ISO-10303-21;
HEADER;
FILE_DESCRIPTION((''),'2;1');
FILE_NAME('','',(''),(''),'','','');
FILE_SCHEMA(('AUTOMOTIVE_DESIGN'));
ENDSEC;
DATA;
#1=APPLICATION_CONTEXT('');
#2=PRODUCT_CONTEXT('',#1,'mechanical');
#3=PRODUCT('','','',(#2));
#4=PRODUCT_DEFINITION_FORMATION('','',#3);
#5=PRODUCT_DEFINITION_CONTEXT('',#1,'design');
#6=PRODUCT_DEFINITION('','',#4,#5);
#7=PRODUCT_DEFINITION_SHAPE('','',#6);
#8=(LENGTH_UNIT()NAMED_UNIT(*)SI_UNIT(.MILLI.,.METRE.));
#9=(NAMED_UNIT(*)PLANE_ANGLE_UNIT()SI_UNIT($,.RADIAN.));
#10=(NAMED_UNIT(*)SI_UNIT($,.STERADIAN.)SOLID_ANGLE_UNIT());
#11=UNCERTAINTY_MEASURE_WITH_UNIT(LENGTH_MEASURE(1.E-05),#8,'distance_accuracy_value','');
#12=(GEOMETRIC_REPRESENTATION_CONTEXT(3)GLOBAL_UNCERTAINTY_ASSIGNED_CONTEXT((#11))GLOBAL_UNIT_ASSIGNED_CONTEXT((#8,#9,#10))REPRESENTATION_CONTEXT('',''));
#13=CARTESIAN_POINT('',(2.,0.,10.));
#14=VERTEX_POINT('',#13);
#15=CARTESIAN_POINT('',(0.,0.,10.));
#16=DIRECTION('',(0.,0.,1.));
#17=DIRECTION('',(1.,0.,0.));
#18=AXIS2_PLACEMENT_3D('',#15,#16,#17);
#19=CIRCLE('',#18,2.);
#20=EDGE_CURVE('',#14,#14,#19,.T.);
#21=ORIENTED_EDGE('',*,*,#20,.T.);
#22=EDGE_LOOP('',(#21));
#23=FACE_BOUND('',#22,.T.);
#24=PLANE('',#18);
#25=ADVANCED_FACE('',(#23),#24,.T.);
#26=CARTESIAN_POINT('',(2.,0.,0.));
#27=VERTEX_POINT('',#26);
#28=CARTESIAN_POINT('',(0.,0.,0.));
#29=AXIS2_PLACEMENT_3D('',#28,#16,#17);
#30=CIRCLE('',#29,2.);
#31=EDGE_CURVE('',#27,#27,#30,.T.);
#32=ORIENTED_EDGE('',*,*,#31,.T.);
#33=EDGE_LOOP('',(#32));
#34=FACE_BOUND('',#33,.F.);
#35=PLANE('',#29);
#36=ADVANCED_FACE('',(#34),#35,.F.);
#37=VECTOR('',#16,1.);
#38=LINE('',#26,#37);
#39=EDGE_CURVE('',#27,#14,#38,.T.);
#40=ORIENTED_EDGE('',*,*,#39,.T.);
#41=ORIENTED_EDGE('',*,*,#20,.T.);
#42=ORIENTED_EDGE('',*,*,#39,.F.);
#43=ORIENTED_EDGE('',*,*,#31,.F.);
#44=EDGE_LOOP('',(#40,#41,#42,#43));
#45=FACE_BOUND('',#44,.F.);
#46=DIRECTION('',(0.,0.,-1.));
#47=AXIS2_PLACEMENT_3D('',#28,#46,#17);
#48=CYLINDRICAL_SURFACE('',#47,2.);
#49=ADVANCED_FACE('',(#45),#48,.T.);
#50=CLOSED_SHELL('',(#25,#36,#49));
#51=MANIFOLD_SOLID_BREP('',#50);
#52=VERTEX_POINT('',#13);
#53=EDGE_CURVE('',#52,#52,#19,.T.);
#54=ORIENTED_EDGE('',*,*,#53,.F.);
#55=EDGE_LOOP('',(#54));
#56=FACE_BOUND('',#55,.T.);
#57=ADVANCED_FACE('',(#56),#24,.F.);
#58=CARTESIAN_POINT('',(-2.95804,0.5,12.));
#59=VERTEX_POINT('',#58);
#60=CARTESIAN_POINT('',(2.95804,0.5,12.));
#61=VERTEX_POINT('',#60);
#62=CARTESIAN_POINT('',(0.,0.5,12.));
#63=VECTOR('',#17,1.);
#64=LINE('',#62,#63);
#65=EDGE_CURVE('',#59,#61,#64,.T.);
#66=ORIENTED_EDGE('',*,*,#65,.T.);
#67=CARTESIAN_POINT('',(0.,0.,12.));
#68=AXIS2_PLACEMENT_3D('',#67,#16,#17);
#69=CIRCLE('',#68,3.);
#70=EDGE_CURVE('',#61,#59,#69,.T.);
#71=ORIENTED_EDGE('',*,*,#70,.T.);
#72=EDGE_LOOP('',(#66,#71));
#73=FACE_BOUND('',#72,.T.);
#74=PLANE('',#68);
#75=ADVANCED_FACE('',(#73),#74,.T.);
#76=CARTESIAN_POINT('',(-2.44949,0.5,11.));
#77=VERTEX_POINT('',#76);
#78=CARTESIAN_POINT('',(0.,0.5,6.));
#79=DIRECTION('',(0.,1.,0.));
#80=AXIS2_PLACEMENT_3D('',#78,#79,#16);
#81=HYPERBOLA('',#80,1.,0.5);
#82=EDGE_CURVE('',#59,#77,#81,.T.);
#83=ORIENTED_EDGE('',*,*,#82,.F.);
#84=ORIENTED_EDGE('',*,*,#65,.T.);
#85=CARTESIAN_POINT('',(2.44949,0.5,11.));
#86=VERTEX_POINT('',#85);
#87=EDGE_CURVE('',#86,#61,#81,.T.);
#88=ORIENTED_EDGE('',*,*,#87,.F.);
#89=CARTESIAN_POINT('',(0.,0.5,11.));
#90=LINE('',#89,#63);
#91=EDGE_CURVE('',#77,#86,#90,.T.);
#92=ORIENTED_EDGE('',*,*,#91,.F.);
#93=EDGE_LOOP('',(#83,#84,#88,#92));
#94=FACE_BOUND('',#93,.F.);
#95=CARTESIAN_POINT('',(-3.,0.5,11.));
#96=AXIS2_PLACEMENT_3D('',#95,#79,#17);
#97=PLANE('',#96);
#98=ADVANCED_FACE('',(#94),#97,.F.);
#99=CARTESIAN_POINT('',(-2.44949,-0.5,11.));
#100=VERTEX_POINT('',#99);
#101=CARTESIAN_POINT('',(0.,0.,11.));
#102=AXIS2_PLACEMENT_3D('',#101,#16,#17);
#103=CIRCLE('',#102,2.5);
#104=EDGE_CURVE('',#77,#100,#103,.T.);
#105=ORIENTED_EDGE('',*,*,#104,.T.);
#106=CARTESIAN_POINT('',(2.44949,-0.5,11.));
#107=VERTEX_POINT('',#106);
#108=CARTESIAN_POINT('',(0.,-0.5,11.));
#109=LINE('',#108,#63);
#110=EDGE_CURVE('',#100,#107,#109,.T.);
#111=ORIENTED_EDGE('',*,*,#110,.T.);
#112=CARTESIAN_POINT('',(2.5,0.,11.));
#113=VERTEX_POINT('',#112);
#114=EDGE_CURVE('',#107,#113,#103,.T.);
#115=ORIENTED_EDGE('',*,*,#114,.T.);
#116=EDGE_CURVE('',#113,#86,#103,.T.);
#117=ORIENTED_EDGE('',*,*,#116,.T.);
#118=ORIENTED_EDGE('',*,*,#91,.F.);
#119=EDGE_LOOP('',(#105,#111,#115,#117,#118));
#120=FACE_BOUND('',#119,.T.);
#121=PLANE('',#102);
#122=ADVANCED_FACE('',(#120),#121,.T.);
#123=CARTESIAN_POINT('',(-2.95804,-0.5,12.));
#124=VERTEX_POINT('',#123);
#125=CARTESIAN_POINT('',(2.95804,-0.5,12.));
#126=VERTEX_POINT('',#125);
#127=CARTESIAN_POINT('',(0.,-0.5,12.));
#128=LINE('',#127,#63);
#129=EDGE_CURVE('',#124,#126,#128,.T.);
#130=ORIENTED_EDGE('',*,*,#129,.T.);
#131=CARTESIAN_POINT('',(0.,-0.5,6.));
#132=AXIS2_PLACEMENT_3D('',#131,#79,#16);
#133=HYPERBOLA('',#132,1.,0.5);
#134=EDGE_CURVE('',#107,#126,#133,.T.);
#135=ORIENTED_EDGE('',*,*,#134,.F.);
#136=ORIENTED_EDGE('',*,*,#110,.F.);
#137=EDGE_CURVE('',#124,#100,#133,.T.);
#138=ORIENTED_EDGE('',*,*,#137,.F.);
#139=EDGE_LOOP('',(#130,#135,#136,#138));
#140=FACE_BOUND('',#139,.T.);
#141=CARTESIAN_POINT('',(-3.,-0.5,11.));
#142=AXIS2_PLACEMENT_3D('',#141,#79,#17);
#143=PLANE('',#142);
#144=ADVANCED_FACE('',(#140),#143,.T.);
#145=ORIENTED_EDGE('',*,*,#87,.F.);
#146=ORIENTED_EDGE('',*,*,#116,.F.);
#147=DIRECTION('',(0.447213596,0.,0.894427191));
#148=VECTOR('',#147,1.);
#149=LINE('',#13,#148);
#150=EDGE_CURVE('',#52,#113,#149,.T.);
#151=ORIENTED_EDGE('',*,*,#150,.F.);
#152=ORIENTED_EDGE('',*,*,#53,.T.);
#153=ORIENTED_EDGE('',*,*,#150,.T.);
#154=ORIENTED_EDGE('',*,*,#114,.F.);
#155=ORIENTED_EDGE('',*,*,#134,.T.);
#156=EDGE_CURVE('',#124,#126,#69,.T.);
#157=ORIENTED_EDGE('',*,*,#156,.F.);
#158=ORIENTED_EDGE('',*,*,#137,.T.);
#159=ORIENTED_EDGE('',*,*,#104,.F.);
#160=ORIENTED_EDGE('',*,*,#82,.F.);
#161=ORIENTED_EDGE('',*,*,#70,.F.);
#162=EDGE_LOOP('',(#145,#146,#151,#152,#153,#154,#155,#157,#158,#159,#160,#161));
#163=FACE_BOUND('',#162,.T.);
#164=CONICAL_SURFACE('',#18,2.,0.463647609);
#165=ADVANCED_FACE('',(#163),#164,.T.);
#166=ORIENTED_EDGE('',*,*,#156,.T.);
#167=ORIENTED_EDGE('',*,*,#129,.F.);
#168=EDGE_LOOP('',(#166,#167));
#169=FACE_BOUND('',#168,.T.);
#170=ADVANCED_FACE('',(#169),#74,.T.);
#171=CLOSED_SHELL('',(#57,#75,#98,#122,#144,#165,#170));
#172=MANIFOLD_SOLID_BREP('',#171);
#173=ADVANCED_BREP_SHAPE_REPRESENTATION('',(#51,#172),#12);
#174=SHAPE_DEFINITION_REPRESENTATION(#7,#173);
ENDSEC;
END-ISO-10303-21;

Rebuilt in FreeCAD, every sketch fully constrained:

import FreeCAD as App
import Part
import Sketcher
from FreeCAD import Vector

doc = App.newDocument("Part")
body = doc.addObject("PartDesign::Body", "Body")

sketch1 = body.newObject("Sketcher::SketchObject", "Sketch")
sketch1.AttachmentSupport = (doc.getObject("XY_Plane"), [""])
sketch1.MapMode = "FlatFace"
sketch1.addGeometry(Part.Circle(Vector(0, 0, 0), Vector(0, 0, 1), 2), False)
sketch1.addConstraint([
    Sketcher.Constraint("Coincident", 0, 3, -1, 1),
    Sketcher.Constraint("Diameter", 0, 4.0),
])
pad1 = body.newObject("PartDesign::Pad", "Pad")
pad1.Profile = sketch1
pad1.Length = 10
body2 = doc.addObject("PartDesign::Body", "Body001")

sketch2 = body2.newObject("Sketcher::SketchObject", "Sketch001")
sketch2.AttachmentSupport = (doc.getObject("XY_Plane001"), [""])
sketch2.MapMode = "FlatFace"
sketch2.AttachmentOffset = App.Placement(Vector(0, 0, 11), App.Rotation())
sketch2.addGeometry([
    Part.LineSegment(Vector(-3, 0.5, 0), Vector(-3, -0.5, 0)),
    Part.LineSegment(Vector(-3, -0.5, 0), Vector(3, -0.5, 0)),
    Part.LineSegment(Vector(3, -0.5, 0), Vector(3, 0.5, 0)),
    Part.LineSegment(Vector(3, 0.5, 0), Vector(-3, 0.5, 0)),
], False)
sketch2.addConstraint([
    Sketcher.Constraint("Coincident", 0, 2, 1, 1),
    Sketcher.Constraint("Coincident", 1, 2, 2, 1),
    Sketcher.Constraint("Coincident", 2, 2, 3, 1),
    Sketcher.Constraint("Coincident", 3, 2, 0, 1),
    Sketcher.Constraint("Vertical", 0),
    Sketcher.Constraint("Horizontal", 1),
    Sketcher.Constraint("Vertical", 2),
    Sketcher.Constraint("Horizontal", 3),
    Sketcher.Constraint("Symmetric", 0, 2, 2, 2, -1, 1),
    Sketcher.Constraint("DistanceX", 1, 1, 1, 2, 6.0),
    Sketcher.Constraint("DistanceY", 0, 2, 0, 1, 1.0),
])
pad2 = body2.newObject("PartDesign::Pad", "Pad001")
pad2.Profile = sketch2
pad2.Length = 1
body3 = doc.addObject("PartDesign::Body", "Body002")

sketch3 = body3.newObject("Sketcher::SketchObject", "Sketch002")
sketch3.AttachmentSupport = (doc.getObject("XZ_Plane002"), [""])
sketch3.MapMode = "FlatFace"
sketch3.addGeometry([
    Part.LineSegment(Vector(0, 10, 0), Vector(2, 10, 0)),
    Part.LineSegment(Vector(2, 10, 0), Vector(3, 12, 0)),
    Part.LineSegment(Vector(3, 12, 0), Vector(0, 12, 0)),
    Part.LineSegment(Vector(0, 12, 0), Vector(0, 10, 0)),
], False)
sketch3.addConstraint([
    Sketcher.Constraint("Coincident", 0, 2, 1, 1),
    Sketcher.Constraint("Coincident", 1, 2, 2, 1),
    Sketcher.Constraint("Coincident", 2, 2, 3, 1),
    Sketcher.Constraint("Coincident", 3, 2, 0, 1),
    Sketcher.Constraint("Horizontal", 0),
    Sketcher.Constraint("Horizontal", 2),
    Sketcher.Constraint("Vertical", 3),
    Sketcher.Constraint("PointOnObject", 2, 2, -2),
    Sketcher.Constraint("Equal", 0, 3),
    Sketcher.Constraint("DistanceX", 0, 1, 0, 2, 2.0),
    Sketcher.Constraint("DistanceX", 2, 2, 2, 1, 3.0),
    Sketcher.Constraint("DistanceY", -1, 1, 0, 2, 10.0),
])
revolution = body3.newObject("PartDesign::Revolution", "Revolution")
revolution.Profile = sketch3
revolution.ReferenceAxis = (sketch3, ["V_Axis"])
revolution.Angle = 360
doc.recompute()

boolean = body3.newObject("PartDesign::Boolean", "Boolean")
boolean.Type = "Cut"
boolean.addObjects([body2])

doc.recompute()
